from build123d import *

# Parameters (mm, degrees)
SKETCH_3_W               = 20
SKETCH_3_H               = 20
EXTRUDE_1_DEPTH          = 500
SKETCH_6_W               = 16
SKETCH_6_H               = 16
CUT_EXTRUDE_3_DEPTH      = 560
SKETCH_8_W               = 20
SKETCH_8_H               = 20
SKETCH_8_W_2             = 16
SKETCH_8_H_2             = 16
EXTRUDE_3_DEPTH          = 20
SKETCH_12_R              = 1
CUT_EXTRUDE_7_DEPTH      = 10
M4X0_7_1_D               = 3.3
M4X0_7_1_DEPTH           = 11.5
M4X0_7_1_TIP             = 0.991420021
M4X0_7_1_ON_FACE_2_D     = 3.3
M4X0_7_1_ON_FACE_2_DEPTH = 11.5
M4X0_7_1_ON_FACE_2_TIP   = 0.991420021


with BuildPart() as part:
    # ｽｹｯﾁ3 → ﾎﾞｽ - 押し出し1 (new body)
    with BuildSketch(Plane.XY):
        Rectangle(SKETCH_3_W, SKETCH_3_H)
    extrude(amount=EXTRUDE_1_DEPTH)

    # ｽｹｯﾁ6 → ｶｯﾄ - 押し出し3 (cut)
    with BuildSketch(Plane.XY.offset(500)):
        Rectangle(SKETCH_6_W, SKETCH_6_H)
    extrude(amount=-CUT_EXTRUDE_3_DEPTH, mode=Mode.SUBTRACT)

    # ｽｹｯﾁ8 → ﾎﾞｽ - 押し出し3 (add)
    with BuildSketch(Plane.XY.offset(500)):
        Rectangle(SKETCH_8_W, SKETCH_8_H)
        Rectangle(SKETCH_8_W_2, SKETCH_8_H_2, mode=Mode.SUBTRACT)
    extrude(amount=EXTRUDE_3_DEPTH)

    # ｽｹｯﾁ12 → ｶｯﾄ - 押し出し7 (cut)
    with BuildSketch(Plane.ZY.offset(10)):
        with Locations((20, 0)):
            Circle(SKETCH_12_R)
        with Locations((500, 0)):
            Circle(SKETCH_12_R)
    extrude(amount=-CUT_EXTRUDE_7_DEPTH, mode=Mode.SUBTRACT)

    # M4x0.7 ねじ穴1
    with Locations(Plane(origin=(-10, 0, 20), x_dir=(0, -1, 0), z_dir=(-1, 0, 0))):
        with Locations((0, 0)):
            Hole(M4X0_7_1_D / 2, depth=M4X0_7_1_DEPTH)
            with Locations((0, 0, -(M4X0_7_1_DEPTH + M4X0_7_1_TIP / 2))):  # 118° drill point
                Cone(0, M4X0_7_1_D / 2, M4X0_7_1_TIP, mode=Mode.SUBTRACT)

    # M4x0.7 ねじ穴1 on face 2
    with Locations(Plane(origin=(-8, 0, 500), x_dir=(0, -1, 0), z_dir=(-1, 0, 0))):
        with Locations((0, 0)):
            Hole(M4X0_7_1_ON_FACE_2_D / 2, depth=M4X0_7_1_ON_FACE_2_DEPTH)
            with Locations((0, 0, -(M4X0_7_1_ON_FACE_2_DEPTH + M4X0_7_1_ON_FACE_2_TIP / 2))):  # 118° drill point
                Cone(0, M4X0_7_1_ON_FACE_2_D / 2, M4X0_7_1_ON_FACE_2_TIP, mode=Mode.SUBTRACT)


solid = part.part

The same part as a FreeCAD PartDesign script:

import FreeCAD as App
import Part
import Sketcher

V = App.Vector


def add_polygon(sketch, points):
    """Adds a closed chain of lines whose ends are joined by coincident constraints."""
    first, n = sketch.GeometryCount, len(points)
    for a, b in zip(points, points[1:] + points[:1]):
        sketch.addGeometry(Part.LineSegment(App.Vector(*a, 0), App.Vector(*b, 0)), False)
    for i in range(n):
        sketch.addConstraint(Sketcher.Constraint("Coincident", first + i, 2, first + (i + 1) % n, 1))

doc = App.newDocument("Part")
body = doc.addObject("PartDesign::Body", "Body")

# Sketch on XY plane
sketch1 = body.newObject("Sketcher::SketchObject", "Sketch")
sketch1.AttachmentSupport = (doc.getObject("XY_Plane"), [""])
sketch1.MapMode = "FlatFace"
add_polygon(sketch1, [(-10, 10), (-10, -10), (10, -10), (10, 10)])  # lines 0-3
sketch1.addConstraint([
    Sketcher.Constraint("Vertical", 0),
    Sketcher.Constraint("Horizontal", 1),
    Sketcher.Constraint("Vertical", 2),
    Sketcher.Constraint("Horizontal", 3),
    Sketcher.Constraint("Symmetric", 0, 2, 2, 2, -1, 1),
    Sketcher.Constraint("Equal", 3, 0),
    Sketcher.Constraint("DistanceX", 1, 1, 1, 2, 20.0),
])
pad1 = body.newObject("PartDesign::Pad", "Pad")
pad1.Profile = sketch1
pad1.Length = 500

# Sketch on XY plane
sketch2 = body.newObject("Sketcher::SketchObject", "Sketch001")
sketch2.AttachmentSupport = (doc.getObject("XY_Plane"), [""])
sketch2.MapMode = "FlatFace"
sketch2.AttachmentOffset = App.Placement(V(0, 0, 500), App.Rotation())
add_polygon(sketch2, [(-8, 8), (-8, -8), (8, -8), (8, 8)])  # lines 0-3
sketch2.addConstraint([
    Sketcher.Constraint("Vertical", 0),
    Sketcher.Constraint("Horizontal", 1),
    Sketcher.Constraint("Vertical", 2),
    Sketcher.Constraint("Horizontal", 3),
    Sketcher.Constraint("Symmetric", 0, 2, 2, 2, -1, 1),
    Sketcher.Constraint("Equal", 3, 0),
    Sketcher.Constraint("DistanceX", 1, 1, 1, 2, 16.0),
])
pocket1 = body.newObject("PartDesign::Pocket", "Pocket")
pocket1.Profile = sketch2
pocket1.Length = 560

# Sketch on XY plane
sketch3 = body.newObject("Sketcher::SketchObject", "Sketch002")
sketch3.AttachmentSupport = (doc.getObject("XY_Plane"), [""])
sketch3.MapMode = "FlatFace"
sketch3.AttachmentOffset = App.Placement(V(0, 0, 500), App.Rotation())
add_polygon(sketch3, [(-10, 10), (-10, -10), (10, -10), (10, 10)])  # lines 0-3
add_polygon(sketch3, [(8, -8), (-8, -8), (-8, 8), (8, 8)])  # lines 4-7
sketch3.addConstraint([
    Sketcher.Constraint("Vertical", 0),
    Sketcher.Constraint("Horizontal", 1),
    Sketcher.Constraint("Vertical", 2),
    Sketcher.Constraint("Horizontal", 3),
    Sketcher.Constraint("Horizontal", 4),
    Sketcher.Constraint("Vertical", 5),
    Sketcher.Constraint("Horizontal", 6),
    Sketcher.Constraint("Vertical", 7),
    Sketcher.Constraint("Symmetric", 0, 2, 2, 2, -1, 1),
    Sketcher.Constraint("Symmetric", 4, 2, 6, 2, -1, 1),
    Sketcher.Constraint("Equal", 3, 0),
    Sketcher.Constraint("Equal", 6, 5),
    Sketcher.Constraint("DistanceX", 1, 1, 1, 2, 20.0),
    Sketcher.Constraint("DistanceX", 4, 2, 4, 1, 16.0),
])
pad2 = body.newObject("PartDesign::Pad", "Pad001")
pad2.Profile = sketch3
pad2.Length = 20

# Sketch on YZ plane
sketch4 = body.newObject("Sketcher::SketchObject", "Sketch003")
sketch4.AttachmentSupport = (doc.getObject("YZ_Plane"), [""])
sketch4.MapMode = "FlatFace"
sketch4.AttachmentOffset = App.Placement(V(0, 0, -10), App.Rotation())
sketch4.addGeometry([
    Part.Circle(V(0, 20, 0), V(0, 0, 1), 1),
    Part.Circle(V(0, 500, 0), V(0, 0, 1), 1),
], False)
sketch4.addConstraint([
    Sketcher.Constraint("Equal", 0, 1),
    Sketcher.Constraint("PointOnObject", 0, 3, -2),
    Sketcher.Constraint("PointOnObject", 1, 3, -2),
    Sketcher.Constraint("Diameter", 0, 2.0),
    Sketcher.Constraint("DistanceY", -1, 1, 0, 3, 20.0),
    Sketcher.Constraint("DistanceY", -1, 1, 1, 3, 500.0),
])
pocket2 = body.newObject("PartDesign::Pocket", "Pocket001")
pocket2.Profile = sketch4
pocket2.Length = 10
pocket2.Reversed = True

# Sketch on YZ plane
sketch5 = body.newObject("Sketcher::SketchObject", "Sketch004")
sketch5.AttachmentSupport = (doc.getObject("YZ_Plane"), [""])
sketch5.MapMode = "FlatFace"
sketch5.AttachmentOffset = App.Placement(V(0, 0, -10), App.Rotation())
sketch5.addGeometry(Part.Circle(V(0, 20, 0), V(0, 0, 1), 1.6), False)
sketch5.addConstraint([
    Sketcher.Constraint("PointOnObject", 0, 3, -2),
    Sketcher.Constraint("Diameter", 0, 3.3),
    Sketcher.Constraint("DistanceY", -1, 1, 0, 3, 20.0),
])
doc.recompute()
hole = body.newObject("PartDesign::Hole", "Hole")
hole.Profile = sketch5
hole.ThreadType = "None"
hole.Diameter = 3.3
hole.DepthType = "Dimension"
hole.Depth = 11.5
hole.DrillPoint = "Angled"
hole.DrillPointAngle = 118
hole.Reversed = True

# Sketch on YZ plane
sketch6 = body.newObject("Sketcher::SketchObject", "Sketch005")
sketch6.AttachmentSupport = (doc.getObject("YZ_Plane"), [""])
sketch6.MapMode = "FlatFace"
sketch6.AttachmentOffset = App.Placement(V(0, 0, -8), App.Rotation())
sketch6.addGeometry(Part.Circle(V(0, 500, 0), V(0, 0, 1), 1.6), False)
sketch6.addConstraint([
    Sketcher.Constraint("PointOnObject", 0, 3, -2),
    Sketcher.Constraint("Diameter", 0, 3.3),
    Sketcher.Constraint("DistanceY", -1, 1, 0, 3, 500.0),
])
doc.recompute()
hole2 = body.newObject("PartDesign::Hole", "Hole001")
hole2.Profile = sketch6
hole2.ThreadType = "None"
hole2.Diameter = 3.3
hole2.DepthType = "Dimension"
hole2.Depth = 11.5
hole2.DrillPoint = "Angled"
hole2.DrillPointAngle = 118

doc.recompute()
